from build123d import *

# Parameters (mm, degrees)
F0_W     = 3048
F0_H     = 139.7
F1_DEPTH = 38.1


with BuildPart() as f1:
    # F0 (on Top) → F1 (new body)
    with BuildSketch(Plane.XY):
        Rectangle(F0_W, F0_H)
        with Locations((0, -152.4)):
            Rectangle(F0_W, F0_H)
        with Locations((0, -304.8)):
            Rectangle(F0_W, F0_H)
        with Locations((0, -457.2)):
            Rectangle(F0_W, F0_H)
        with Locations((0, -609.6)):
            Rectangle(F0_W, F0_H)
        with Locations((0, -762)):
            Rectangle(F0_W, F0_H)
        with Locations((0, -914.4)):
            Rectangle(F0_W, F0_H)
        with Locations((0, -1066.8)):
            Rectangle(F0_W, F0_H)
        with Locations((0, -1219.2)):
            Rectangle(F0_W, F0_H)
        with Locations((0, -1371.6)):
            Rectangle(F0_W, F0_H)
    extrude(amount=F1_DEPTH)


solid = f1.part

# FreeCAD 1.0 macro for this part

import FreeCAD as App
import Part
import Sketcher

V = App.Vector
Q = App.Units.Quantity

doc = App.newDocument("Part")
body = doc.addObject("PartDesign::Body", "Body")
body.AllowCompound = True

# Sketch on XY plane
sketch1 = doc.addObject("Sketcher::SketchObject", "Sketch")
body.addObject(sketch1)
sketch1.AttachmentSupport = (doc.XY_Plane, [""])
sketch1.MapMode = "FlatFace"
sketch1.addGeometry([
    Part.LineSegment(V(-1524, 69.85, 0), V(-1524, -69.85, 0)),  # 0
    Part.LineSegment(V(-1524, -69.85, 0), V(1524, -69.85, 0)),  # 1
    Part.LineSegment(V(1524, -69.85, 0), V(1524, 69.85, 0)),  # 2
    Part.LineSegment(V(1524, 69.85, 0), V(-1524, 69.85, 0)),  # 3
    Part.LineSegment(V(-1524, -82.55, 0), V(-1524, -222.25, 0)),  # 4
    Part.LineSegment(V(-1524, -222.25, 0), V(1524, -222.25, 0)),  # 5
    Part.LineSegment(V(1524, -222.25, 0), V(1524, -82.55, 0)),  # 6
    Part.LineSegment(V(1524, -82.55, 0), V(-1524, -82.55, 0)),  # 7
    Part.LineSegment(V(-1524, -234.95, 0), V(-1524, -374.65, 0)),  # 8
    Part.LineSegment(V(-1524, -374.65, 0), V(1524, -374.65, 0)),  # 9
    Part.LineSegment(V(1524, -374.65, 0), V(1524, -234.95, 0)),  # 10
    Part.LineSegment(V(1524, -234.95, 0), V(-1524, -234.95, 0)),  # 11
    Part.LineSegment(V(-1524, -387.35, 0), V(-1524, -527.05, 0)),  # 12
    Part.LineSegment(V(-1524, -527.05, 0), V(1524, -527.05, 0)),  # 13
    Part.LineSegment(V(1524, -527.05, 0), V(1524, -387.35, 0)),  # 14
    Part.LineSegment(V(1524, -387.35, 0), V(-1524, -387.35, 0)),  # 15
    Part.LineSegment(V(-1524, -539.75, 0), V(-1524, -679.45, 0)),  # 16
    Part.LineSegment(V(-1524, -679.45, 0), V(1524, -679.45, 0)),  # 17
    Part.LineSegment(V(1524, -679.45, 0), V(1524, -539.75, 0)),  # 18
    Part.LineSegment(V(1524, -539.75, 0), V(-1524, -539.75, 0)),  # 19
    Part.LineSegment(V(-1524, -692.15, 0), V(-1524, -831.85, 0)),  # 20
    Part.LineSegment(V(-1524, -831.85, 0), V(1524, -831.85, 0)),  # 21
    Part.LineSegment(V(1524, -831.85, 0), V(1524, -692.15, 0)),  # 22
    Part.LineSegment(V(1524, -692.15, 0), V(-1524, -692.15, 0)),  # 23
    Part.LineSegment(V(-1524, -844.55, 0), V(-1524, -984.25, 0)),  # 24
    Part.LineSegment(V(-1524, -984.25, 0), V(1524, -984.25, 0)),  # 25
    Part.LineSegment(V(1524, -984.25, 0), V(1524, -844.55, 0)),  # 26
    Part.LineSegment(V(1524, -844.55, 0), V(-1524, -844.55, 0)),  # 27
    Part.LineSegment(V(-1524, -996.95, 0), V(-1524, -1136.65, 0)),  # 28
    Part.LineSegment(V(-1524, -1136.65, 0), V(1524, -1136.65, 0)),  # 29
    Part.LineSegment(V(1524, -1136.65, 0), V(1524, -996.95, 0)),  # 30
    Part.LineSegment(V(1524, -996.95, 0), V(-1524, -996.95, 0)),  # 31
    Part.LineSegment(V(-1524, -1149.35, 0), V(-1524, -1289.05, 0)),  # 32
    Part.LineSegment(V(-1524, -1289.05, 0), V(1524, -1289.05, 0)),  # 33
    Part.LineSegment(V(1524, -1289.05, 0), V(1524, -1149.35, 0)),  # 34
    Part.LineSegment(V(1524, -1149.35, 0), V(-1524, -1149.35, 0)),  # 35
    Part.LineSegment(V(-1524, -1301.75, 0), V(-1524, -1441.45, 0)),  # 36
    Part.LineSegment(V(-1524, -1441.45, 0), V(1524, -1441.45, 0)),  # 37
    Part.LineSegment(V(1524, -1441.45, 0), V(1524, -1301.75, 0)),  # 38
    Part.LineSegment(V(1524, -1301.75, 0), V(-1524, -1301.75, 0)),  # 39
], False)
sketch1.addConstraint([
    Sketcher.Constraint("Coincident", 0, 2, 1, 1),
    Sketcher.Constraint("Coincident", 1, 2, 2, 1),
    Sketcher.Constraint("Coincident", 2, 2, 3, 1),
    Sketcher.Constraint("Coincident", 3, 2, 0, 1),
    Sketcher.Constraint("Coincident", 4, 2, 5, 1),
    Sketcher.Constraint("Coincident", 5, 2, 6, 1),
    Sketcher.Constraint("Coincident", 6, 2, 7, 1),
    Sketcher.Constraint("Coincident", 7, 2, 4, 1),
    Sketcher.Constraint("Coincident", 8, 2, 9, 1),
    Sketcher.Constraint("Coincident", 9, 2, 10, 1),
    Sketcher.Constraint("Coincident", 10, 2, 11, 1),
    Sketcher.Constraint("Coincident", 11, 2, 8, 1),
    Sketcher.Constraint("Coincident", 12, 2, 13, 1),
    Sketcher.Constraint("Coincident", 13, 2, 14, 1),
    Sketcher.Constraint("Coincident", 14, 2, 15, 1),
    Sketcher.Constraint("Coincident", 15, 2, 12, 1),
    Sketcher.Constraint("Coincident", 16, 2, 17, 1),
    Sketcher.Constraint("Coincident", 17, 2, 18, 1),
    Sketcher.Constraint("Coincident", 18, 2, 19, 1),
    Sketcher.Constraint("Coincident", 19, 2, 16, 1),
    Sketcher.Constraint("Coincident", 20, 2, 21, 1),
    Sketcher.Constraint("Coincident", 21, 2, 22, 1),
    Sketcher.Constraint("Coincident", 22, 2, 23, 1),
    Sketcher.Constraint("Coincident", 23, 2, 20, 1),
    Sketcher.Constraint("Coincident", 24, 2, 25, 1),
    Sketcher.Constraint("Coincident", 25, 2, 26, 1),
    Sketcher.Constraint("Coincident", 26, 2, 27, 1),
    Sketcher.Constraint("Coincident", 27, 2, 24, 1),
    Sketcher.Constraint("Coincident", 28, 2, 29, 1),
    Sketcher.Constraint("Coincident", 29, 2, 30, 1),
    Sketcher.Constraint("Coincident", 30, 2, 31, 1),
    Sketcher.Constraint("Coincident", 31, 2, 28, 1),
    Sketcher.Constraint("Coincident", 32, 2, 33, 1),
    Sketcher.Constraint("Coincident", 33, 2, 34, 1),
    Sketcher.Constraint("Coincident", 34, 2, 35, 1),
    Sketcher.Constraint("Coincident", 35, 2, 32, 1),
    Sketcher.Constraint("Coincident", 36, 2, 37, 1),
    Sketcher.Constraint("Coincident", 37, 2, 38, 1),
    Sketcher.Constraint("Coincident", 38, 2, 39, 1),
    Sketcher.Constraint("Coincident", 39, 2, 36, 1),
    Sketcher.Constraint("Vertical", 0),
    Sketcher.Constraint("Horizontal", 1),
    Sketcher.Constraint("Vertical", 2),
    Sketcher.Constraint("Horizontal", 3),
    Sketcher.Constraint("Vertical", 4),
    Sketcher.Constraint("Horizontal", 5),
    Sketcher.Constraint("Vertical", 6),
    Sketcher.Constraint("Horizontal", 7),
    Sketcher.Constraint("Vertical", 8),
    Sketcher.Constraint("Horizontal", 9),
    Sketcher.Constraint("Vertical", 10),
    Sketcher.Constraint("Horizontal", 11),
    Sketcher.Constraint("Vertical", 12),
    Sketcher.Constraint("Horizontal", 13),
    Sketcher.Constraint("Vertical", 14),
    Sketcher.Constraint("Horizontal", 15),
    Sketcher.Constraint("Vertical", 16),
    Sketcher.Constraint("Horizontal", 17),
    Sketcher.Constraint("Vertical", 18),
    Sketcher.Constraint("Horizontal", 19),
    Sketcher.Constraint("Vertical", 20),
    Sketcher.Constraint("Horizontal", 21),
    Sketcher.Constraint("Vertical", 22),
    Sketcher.Constraint("Horizontal", 23),
    Sketcher.Constraint("Vertical", 24),
    Sketcher.Constraint("Horizontal", 25),
    Sketcher.Constraint("Vertical", 26),
    Sketcher.Constraint("Horizontal", 27),
    Sketcher.Constraint("Vertical", 28),
    Sketcher.Constraint("Horizontal", 29),
    Sketcher.Constraint("Vertical", 30),
    Sketcher.Constraint("Horizontal", 31),
    Sketcher.Constraint("Vertical", 32),
    Sketcher.Constraint("Horizontal", 33),
    Sketcher.Constraint("Vertical", 34),
    Sketcher.Constraint("Horizontal", 35),
    Sketcher.Constraint("Vertical", 36),
    Sketcher.Constraint("Horizontal", 37),
    Sketcher.Constraint("Vertical", 38),
    Sketcher.Constraint("Horizontal", 39),
    Sketcher.Constraint("Symmetric", 0, 2, 2, 2, -1, 1),
    Sketcher.Constraint("Vertical", 3, 2, 4, 2),
    Sketcher.Constraint("Vertical", 2, 2, 5, 2),
    Sketcher.Constraint("Vertical", 7, 2, 8, 2),
    Sketcher.Constraint("Vertical", 6, 2, 9, 2),
    Sketcher.Constraint("Vertical", 11, 2, 12, 2),
    Sketcher.Constraint("Vertical", 10, 2, 13, 2),
    Sketcher.Constraint("Vertical", 15, 2, 16, 2),
    Sketcher.Constraint("Vertical", 14, 2, 17, 2),
    Sketcher.Constraint("Vertical", 19, 2, 20, 2),
    Sketcher.Constraint("Vertical", 18, 2, 21, 2),
    Sketcher.Constraint("Vertical", 23, 2, 24, 2),
    Sketcher.Constraint("Vertical", 22, 2, 25, 2),
    Sketcher.Constraint("Vertical", 27, 2, 28, 2),
    Sketcher.Constraint("Vertical", 26, 2, 29, 2),
    Sketcher.Constraint("Vertical", 31, 2, 32, 2),
    Sketcher.Constraint("Vertical", 30, 2, 33, 2),
    Sketcher.Constraint("Vertical", 35, 2, 36, 2),
    Sketcher.Constraint("Vertical", 34, 2, 37, 2),
    Sketcher.Constraint("Equal", 2, 4),
    Sketcher.Constraint("Equal", 6, 8),
    Sketcher.Constraint("Equal", 10, 12),
    Sketcher.Constraint("Equal", 14, 16),
    Sketcher.Constraint("Equal", 18, 20),
    Sketcher.Constraint("Equal", 22, 24),
    Sketcher.Constraint("Equal", 26, 28),
    Sketcher.Constraint("Equal", 30, 32),
    Sketcher.Constraint("Equal", 34, 36),
    Sketcher.Constraint("DistanceX", 1, 1, 1, 2, Q("120 in")),
    Sketcher.Constraint("DistanceY", 0, 2, 0, 1, Q("5.5 in")),
    Sketcher.Constraint("DistanceY", 4, 2, 0, 2, Q("6 in")),
    Sketcher.Constraint("DistanceY", 8, 2, 4, 2, Q("6 in")),
    Sketcher.Constraint("DistanceY", 12, 2, 8, 2, Q("6 in")),
    Sketcher.Constraint("DistanceY", 16, 2, 12, 2, Q("6 in")),
    Sketcher.Constraint("DistanceY", 20, 2, 16, 2, Q("6 in")),
    Sketcher.Constraint("DistanceY", 24, 2, 20, 2, Q("6 in")),
    Sketcher.Constraint("DistanceY", 28, 2, 24, 2, Q("6 in")),
    Sketcher.Constraint("DistanceY", 32, 2, 28, 2, Q("6 in")),
    Sketcher.Constraint("DistanceY", 36, 2, 32, 2, Q("6 in")),
])
pad1 = doc.addObject("PartDesign::Pad", "Pad")
body.addObject(pad1)
pad1.Profile = sketch1
pad1.Length = Q("1.5 in")

doc.recompute()
